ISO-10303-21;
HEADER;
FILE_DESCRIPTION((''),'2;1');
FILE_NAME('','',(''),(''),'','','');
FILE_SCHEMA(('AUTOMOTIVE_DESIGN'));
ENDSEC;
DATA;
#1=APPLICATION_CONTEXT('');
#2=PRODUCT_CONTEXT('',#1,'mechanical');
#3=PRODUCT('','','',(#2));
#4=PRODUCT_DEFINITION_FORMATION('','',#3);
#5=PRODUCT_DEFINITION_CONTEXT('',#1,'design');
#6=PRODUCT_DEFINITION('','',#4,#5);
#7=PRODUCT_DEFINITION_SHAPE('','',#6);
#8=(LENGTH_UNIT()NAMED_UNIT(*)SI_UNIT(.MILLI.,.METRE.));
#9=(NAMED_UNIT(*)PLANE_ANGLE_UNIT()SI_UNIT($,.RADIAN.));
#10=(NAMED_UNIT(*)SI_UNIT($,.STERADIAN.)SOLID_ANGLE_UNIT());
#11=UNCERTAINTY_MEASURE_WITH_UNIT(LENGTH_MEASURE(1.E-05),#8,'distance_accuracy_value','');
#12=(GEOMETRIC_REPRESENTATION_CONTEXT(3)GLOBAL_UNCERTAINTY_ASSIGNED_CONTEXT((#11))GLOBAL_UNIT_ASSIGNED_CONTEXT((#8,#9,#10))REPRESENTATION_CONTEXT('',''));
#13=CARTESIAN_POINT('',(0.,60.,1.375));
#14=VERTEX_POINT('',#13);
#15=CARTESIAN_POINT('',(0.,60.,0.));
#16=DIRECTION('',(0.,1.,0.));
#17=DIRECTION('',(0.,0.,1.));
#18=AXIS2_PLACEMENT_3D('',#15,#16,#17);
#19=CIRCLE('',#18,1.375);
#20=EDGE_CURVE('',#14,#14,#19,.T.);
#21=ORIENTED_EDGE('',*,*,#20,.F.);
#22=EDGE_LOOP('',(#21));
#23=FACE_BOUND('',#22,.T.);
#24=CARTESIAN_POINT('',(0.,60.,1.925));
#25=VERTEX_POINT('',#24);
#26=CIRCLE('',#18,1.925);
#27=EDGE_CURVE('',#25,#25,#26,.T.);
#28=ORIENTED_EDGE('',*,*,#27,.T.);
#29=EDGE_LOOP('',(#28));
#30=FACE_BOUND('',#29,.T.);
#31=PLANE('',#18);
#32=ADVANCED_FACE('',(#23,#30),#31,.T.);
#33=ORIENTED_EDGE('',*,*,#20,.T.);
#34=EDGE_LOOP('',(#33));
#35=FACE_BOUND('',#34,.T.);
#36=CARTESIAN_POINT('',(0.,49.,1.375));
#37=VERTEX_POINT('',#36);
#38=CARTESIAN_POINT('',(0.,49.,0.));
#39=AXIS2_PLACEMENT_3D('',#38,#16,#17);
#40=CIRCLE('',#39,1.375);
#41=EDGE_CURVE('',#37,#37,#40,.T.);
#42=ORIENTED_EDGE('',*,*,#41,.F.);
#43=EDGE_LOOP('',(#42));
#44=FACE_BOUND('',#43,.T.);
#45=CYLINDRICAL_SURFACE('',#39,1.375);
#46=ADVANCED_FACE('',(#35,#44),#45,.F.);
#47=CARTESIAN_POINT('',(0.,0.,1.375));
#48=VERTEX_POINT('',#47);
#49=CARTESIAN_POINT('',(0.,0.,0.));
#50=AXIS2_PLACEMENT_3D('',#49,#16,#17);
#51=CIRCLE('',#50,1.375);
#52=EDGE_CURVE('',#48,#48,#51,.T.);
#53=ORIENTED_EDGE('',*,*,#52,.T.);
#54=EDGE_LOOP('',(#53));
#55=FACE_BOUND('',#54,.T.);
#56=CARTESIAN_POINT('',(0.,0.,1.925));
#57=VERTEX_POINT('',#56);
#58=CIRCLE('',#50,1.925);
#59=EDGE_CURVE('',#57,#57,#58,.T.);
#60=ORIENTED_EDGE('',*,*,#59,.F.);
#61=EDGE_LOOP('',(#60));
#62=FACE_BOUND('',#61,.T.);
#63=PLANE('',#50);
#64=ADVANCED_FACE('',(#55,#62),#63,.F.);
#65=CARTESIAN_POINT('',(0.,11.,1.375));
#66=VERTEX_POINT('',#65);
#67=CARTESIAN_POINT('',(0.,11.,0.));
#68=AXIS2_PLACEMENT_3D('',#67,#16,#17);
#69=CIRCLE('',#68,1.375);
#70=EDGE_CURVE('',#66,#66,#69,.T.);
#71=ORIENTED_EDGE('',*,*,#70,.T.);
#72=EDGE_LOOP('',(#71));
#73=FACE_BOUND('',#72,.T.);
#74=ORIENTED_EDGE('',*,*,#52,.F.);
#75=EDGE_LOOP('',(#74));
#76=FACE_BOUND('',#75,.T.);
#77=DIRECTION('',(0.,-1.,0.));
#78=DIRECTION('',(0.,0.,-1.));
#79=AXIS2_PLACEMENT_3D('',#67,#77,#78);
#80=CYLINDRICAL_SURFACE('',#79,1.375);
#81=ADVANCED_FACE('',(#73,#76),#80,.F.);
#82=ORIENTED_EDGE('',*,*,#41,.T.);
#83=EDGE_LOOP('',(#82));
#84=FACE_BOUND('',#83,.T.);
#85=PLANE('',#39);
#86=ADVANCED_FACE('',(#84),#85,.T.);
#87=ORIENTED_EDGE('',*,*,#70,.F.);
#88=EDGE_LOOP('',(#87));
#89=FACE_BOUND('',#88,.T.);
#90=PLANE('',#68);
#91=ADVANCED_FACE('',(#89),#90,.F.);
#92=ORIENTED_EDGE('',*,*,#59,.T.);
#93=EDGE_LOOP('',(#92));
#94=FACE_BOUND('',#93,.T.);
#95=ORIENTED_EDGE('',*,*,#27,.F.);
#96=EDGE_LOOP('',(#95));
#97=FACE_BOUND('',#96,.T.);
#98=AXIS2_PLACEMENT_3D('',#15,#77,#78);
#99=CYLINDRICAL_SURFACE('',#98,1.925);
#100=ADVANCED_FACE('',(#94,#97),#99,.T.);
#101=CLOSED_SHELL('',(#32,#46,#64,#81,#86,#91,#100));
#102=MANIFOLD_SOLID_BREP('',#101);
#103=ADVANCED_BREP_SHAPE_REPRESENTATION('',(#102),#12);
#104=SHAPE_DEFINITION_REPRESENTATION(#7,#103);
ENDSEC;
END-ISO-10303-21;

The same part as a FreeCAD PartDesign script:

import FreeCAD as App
import Part
import Sketcher
Q = App.Units.Quantity

doc = App.newDocument("Part")
params = doc.addObject("Spreadsheet::Sheet", "Params")
for row, (alias, value) in enumerate([
    ("sketch1_diameter", "3.85 mm"),
    ("pad1_length", "60 mm"),
    ("sketch2_diameter", "2.75 mm"),
    ("pocket1_length", "11 mm"),
    ("sketch3_diameter", "2.75 mm"),
    ("pocket2_length", "11 mm"),
], start=1):
    params.set(f"A{row}", alias)
    params.set(f"B{row}", "=" + value)
    params.setAlias(f"B{row}", alias)

body = doc.addObject("PartDesign::Body", "Body")

sketch1 = body.newObject("Sketcher::SketchObject", "Sketch")
sketch1.AttachmentSupport = (doc.getObject("XZ_Plane"), [""])
sketch1.MapMode = "FlatFace"
sketch1.addGeometry(Part.Circle(App.Vector(0, 0, 0), App.Vector(0, 0, 1), 1.9), False)
sketch1.addConstraint([
    Sketcher.Constraint("Coincident", 0, 3, -1, 1),
    Sketcher.Constraint("Diameter", 0, Q("3.85 mm")),
])
sketch1.setExpression("Constraints[1]", "Params.sketch1_diameter")
pad1 = body.newObject("PartDesign::Pad", "Pad")
pad1.Profile = sketch1
pad1.setExpression("Length", "Params.pad1_length")
pad1.Reversed = True

sketch2 = body.newObject("Sketcher::SketchObject", "Sketch001")
sketch2.AttachmentSupport = (doc.getObject("XZ_Plane"), [""])
sketch2.MapMode = "FlatFace"
sketch2.AttachmentOffset = App.Placement(App.Vector(0, 0, -60), App.Rotation())
sketch2.addGeometry(Part.Circle(App.Vector(0, 0, 0), App.Vector(0, 0, 1), 1.4), False)
sketch2.addConstraint([
    Sketcher.Constraint("Coincident", 0, 3, -1, 1),
    Sketcher.Constraint("Diameter", 0, Q("2.75 mm")),
])
sketch2.setExpression("Constraints[1]", "Params.sketch2_diameter")
pocket1 = body.newObject("PartDesign::Pocket", "Pocket")
pocket1.Profile = sketch2
pocket1.setExpression("Length", "Params.pocket1_length")
pocket1.Reversed = True

sketch3 = body.newObject("Sketcher::SketchObject", "Sketch002")
sketch3.AttachmentSupport = (doc.getObject("XZ_Plane"), [""])
sketch3.MapMode = "FlatFace"
sketch3.AttachmentOffset = App.Placement(App.Vector(0, 0, -11), App.Rotation())
sketch3.addGeometry(Part.Circle(App.Vector(0, 0, 0), App.Vector(0, 0, 1), 1.4), False)
sketch3.addConstraint([
    Sketcher.Constraint("Coincident", 0, 3, -1, 1),
    Sketcher.Constraint("Diameter", 0, Q("2.75 mm")),
])
sketch3.setExpression("Constraints[1]", "Params.sketch3_diameter")
pocket2 = body.newObject("PartDesign::Pocket", "Pocket001")
pocket2.Profile = sketch3
pocket2.setExpression("Length", "Params.pocket2_length")
pocket2.Reversed = True

doc.recompute()
